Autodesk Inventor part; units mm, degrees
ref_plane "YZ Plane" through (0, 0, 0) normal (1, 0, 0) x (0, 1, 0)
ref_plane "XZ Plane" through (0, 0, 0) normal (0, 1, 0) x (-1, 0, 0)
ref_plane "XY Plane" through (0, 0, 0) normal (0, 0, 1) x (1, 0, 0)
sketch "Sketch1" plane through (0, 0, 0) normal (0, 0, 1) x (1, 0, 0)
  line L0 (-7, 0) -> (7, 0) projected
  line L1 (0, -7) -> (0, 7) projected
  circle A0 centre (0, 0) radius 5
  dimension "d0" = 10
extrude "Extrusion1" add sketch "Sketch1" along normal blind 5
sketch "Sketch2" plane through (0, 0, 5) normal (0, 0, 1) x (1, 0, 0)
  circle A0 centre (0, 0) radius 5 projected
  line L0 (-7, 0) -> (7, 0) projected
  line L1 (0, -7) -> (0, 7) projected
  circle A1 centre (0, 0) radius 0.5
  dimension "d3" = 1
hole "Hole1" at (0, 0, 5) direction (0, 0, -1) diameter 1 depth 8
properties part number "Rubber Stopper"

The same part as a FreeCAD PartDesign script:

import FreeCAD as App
import Part
import Sketcher

V = App.Vector

doc = App.newDocument("Part")
params = doc.addObject("Spreadsheet::Sheet", "Params")
for row, (alias, value) in enumerate([
    ("sketch1_diameter", "10 mm"),
    ("pad1_length", "5 mm"),
    ("sketch2_diameter", "1 mm"),
    ("hole_diameter", "1 mm"),
    ("hole_depth", "8 mm"),
], start=1):
    params.set(f"A{row}", alias)
    params.set(f"B{row}", "=" + value)
    params.setAlias(f"B{row}", alias)

body = doc.addObject("PartDesign::Body", "Body")

sketch1 = body.newObject("Sketcher::SketchObject", "Sketch")
sketch1.AttachmentSupport = (doc.getObject("XY_Plane"), [""])
sketch1.MapMode = "FlatFace"
sketch1.addGeometry(Part.Circle(V(0, 0, 0), V(0, 0, 1), 5), False)
sketch1.addConstraint(Sketcher.Constraint("Coincident", 0, 3, -1, 1))
sketch1.addConstraint(Sketcher.Constraint("Diameter", 0, 10.0))
sketch1.setExpression("Constraints[1]", "Params.sketch1_diameter")
pad1 = body.newObject("PartDesign::Pad", "Pad")
pad1.Profile = sketch1
pad1.setExpression("Length", "Params.pad1_length")

sketch2 = body.newObject("Sketcher::SketchObject", "Sketch001")
sketch2.AttachmentSupport = (doc.getObject("XY_Plane"), [""])
sketch2.MapMode = "FlatFace"
sketch2.AttachmentOffset = App.Placement(V(0, 0, 5), App.Rotation())
sketch2.addGeometry(Part.Circle(V(0, 0, 0), V(0, 0, 1), 0.5), False)
sketch2.addConstraint(Sketcher.Constraint("Coincident", 0, 3, -1, 1))
sketch2.addConstraint(Sketcher.Constraint("Diameter", 0, 1.0))
sketch2.setExpression("Constraints[1]", "Params.sketch2_diameter")
doc.recompute()
hole = body.newObject("PartDesign::Hole", "Hole")
hole.Profile = sketch2
hole.ThreadType = "None"
hole.setExpression("Diameter", "Params.hole_diameter")
hole.DepthType = "Dimension"
hole.setExpression("Depth", "Params.hole_depth")
hole.DrillPoint = "Flat"

doc.recompute()
